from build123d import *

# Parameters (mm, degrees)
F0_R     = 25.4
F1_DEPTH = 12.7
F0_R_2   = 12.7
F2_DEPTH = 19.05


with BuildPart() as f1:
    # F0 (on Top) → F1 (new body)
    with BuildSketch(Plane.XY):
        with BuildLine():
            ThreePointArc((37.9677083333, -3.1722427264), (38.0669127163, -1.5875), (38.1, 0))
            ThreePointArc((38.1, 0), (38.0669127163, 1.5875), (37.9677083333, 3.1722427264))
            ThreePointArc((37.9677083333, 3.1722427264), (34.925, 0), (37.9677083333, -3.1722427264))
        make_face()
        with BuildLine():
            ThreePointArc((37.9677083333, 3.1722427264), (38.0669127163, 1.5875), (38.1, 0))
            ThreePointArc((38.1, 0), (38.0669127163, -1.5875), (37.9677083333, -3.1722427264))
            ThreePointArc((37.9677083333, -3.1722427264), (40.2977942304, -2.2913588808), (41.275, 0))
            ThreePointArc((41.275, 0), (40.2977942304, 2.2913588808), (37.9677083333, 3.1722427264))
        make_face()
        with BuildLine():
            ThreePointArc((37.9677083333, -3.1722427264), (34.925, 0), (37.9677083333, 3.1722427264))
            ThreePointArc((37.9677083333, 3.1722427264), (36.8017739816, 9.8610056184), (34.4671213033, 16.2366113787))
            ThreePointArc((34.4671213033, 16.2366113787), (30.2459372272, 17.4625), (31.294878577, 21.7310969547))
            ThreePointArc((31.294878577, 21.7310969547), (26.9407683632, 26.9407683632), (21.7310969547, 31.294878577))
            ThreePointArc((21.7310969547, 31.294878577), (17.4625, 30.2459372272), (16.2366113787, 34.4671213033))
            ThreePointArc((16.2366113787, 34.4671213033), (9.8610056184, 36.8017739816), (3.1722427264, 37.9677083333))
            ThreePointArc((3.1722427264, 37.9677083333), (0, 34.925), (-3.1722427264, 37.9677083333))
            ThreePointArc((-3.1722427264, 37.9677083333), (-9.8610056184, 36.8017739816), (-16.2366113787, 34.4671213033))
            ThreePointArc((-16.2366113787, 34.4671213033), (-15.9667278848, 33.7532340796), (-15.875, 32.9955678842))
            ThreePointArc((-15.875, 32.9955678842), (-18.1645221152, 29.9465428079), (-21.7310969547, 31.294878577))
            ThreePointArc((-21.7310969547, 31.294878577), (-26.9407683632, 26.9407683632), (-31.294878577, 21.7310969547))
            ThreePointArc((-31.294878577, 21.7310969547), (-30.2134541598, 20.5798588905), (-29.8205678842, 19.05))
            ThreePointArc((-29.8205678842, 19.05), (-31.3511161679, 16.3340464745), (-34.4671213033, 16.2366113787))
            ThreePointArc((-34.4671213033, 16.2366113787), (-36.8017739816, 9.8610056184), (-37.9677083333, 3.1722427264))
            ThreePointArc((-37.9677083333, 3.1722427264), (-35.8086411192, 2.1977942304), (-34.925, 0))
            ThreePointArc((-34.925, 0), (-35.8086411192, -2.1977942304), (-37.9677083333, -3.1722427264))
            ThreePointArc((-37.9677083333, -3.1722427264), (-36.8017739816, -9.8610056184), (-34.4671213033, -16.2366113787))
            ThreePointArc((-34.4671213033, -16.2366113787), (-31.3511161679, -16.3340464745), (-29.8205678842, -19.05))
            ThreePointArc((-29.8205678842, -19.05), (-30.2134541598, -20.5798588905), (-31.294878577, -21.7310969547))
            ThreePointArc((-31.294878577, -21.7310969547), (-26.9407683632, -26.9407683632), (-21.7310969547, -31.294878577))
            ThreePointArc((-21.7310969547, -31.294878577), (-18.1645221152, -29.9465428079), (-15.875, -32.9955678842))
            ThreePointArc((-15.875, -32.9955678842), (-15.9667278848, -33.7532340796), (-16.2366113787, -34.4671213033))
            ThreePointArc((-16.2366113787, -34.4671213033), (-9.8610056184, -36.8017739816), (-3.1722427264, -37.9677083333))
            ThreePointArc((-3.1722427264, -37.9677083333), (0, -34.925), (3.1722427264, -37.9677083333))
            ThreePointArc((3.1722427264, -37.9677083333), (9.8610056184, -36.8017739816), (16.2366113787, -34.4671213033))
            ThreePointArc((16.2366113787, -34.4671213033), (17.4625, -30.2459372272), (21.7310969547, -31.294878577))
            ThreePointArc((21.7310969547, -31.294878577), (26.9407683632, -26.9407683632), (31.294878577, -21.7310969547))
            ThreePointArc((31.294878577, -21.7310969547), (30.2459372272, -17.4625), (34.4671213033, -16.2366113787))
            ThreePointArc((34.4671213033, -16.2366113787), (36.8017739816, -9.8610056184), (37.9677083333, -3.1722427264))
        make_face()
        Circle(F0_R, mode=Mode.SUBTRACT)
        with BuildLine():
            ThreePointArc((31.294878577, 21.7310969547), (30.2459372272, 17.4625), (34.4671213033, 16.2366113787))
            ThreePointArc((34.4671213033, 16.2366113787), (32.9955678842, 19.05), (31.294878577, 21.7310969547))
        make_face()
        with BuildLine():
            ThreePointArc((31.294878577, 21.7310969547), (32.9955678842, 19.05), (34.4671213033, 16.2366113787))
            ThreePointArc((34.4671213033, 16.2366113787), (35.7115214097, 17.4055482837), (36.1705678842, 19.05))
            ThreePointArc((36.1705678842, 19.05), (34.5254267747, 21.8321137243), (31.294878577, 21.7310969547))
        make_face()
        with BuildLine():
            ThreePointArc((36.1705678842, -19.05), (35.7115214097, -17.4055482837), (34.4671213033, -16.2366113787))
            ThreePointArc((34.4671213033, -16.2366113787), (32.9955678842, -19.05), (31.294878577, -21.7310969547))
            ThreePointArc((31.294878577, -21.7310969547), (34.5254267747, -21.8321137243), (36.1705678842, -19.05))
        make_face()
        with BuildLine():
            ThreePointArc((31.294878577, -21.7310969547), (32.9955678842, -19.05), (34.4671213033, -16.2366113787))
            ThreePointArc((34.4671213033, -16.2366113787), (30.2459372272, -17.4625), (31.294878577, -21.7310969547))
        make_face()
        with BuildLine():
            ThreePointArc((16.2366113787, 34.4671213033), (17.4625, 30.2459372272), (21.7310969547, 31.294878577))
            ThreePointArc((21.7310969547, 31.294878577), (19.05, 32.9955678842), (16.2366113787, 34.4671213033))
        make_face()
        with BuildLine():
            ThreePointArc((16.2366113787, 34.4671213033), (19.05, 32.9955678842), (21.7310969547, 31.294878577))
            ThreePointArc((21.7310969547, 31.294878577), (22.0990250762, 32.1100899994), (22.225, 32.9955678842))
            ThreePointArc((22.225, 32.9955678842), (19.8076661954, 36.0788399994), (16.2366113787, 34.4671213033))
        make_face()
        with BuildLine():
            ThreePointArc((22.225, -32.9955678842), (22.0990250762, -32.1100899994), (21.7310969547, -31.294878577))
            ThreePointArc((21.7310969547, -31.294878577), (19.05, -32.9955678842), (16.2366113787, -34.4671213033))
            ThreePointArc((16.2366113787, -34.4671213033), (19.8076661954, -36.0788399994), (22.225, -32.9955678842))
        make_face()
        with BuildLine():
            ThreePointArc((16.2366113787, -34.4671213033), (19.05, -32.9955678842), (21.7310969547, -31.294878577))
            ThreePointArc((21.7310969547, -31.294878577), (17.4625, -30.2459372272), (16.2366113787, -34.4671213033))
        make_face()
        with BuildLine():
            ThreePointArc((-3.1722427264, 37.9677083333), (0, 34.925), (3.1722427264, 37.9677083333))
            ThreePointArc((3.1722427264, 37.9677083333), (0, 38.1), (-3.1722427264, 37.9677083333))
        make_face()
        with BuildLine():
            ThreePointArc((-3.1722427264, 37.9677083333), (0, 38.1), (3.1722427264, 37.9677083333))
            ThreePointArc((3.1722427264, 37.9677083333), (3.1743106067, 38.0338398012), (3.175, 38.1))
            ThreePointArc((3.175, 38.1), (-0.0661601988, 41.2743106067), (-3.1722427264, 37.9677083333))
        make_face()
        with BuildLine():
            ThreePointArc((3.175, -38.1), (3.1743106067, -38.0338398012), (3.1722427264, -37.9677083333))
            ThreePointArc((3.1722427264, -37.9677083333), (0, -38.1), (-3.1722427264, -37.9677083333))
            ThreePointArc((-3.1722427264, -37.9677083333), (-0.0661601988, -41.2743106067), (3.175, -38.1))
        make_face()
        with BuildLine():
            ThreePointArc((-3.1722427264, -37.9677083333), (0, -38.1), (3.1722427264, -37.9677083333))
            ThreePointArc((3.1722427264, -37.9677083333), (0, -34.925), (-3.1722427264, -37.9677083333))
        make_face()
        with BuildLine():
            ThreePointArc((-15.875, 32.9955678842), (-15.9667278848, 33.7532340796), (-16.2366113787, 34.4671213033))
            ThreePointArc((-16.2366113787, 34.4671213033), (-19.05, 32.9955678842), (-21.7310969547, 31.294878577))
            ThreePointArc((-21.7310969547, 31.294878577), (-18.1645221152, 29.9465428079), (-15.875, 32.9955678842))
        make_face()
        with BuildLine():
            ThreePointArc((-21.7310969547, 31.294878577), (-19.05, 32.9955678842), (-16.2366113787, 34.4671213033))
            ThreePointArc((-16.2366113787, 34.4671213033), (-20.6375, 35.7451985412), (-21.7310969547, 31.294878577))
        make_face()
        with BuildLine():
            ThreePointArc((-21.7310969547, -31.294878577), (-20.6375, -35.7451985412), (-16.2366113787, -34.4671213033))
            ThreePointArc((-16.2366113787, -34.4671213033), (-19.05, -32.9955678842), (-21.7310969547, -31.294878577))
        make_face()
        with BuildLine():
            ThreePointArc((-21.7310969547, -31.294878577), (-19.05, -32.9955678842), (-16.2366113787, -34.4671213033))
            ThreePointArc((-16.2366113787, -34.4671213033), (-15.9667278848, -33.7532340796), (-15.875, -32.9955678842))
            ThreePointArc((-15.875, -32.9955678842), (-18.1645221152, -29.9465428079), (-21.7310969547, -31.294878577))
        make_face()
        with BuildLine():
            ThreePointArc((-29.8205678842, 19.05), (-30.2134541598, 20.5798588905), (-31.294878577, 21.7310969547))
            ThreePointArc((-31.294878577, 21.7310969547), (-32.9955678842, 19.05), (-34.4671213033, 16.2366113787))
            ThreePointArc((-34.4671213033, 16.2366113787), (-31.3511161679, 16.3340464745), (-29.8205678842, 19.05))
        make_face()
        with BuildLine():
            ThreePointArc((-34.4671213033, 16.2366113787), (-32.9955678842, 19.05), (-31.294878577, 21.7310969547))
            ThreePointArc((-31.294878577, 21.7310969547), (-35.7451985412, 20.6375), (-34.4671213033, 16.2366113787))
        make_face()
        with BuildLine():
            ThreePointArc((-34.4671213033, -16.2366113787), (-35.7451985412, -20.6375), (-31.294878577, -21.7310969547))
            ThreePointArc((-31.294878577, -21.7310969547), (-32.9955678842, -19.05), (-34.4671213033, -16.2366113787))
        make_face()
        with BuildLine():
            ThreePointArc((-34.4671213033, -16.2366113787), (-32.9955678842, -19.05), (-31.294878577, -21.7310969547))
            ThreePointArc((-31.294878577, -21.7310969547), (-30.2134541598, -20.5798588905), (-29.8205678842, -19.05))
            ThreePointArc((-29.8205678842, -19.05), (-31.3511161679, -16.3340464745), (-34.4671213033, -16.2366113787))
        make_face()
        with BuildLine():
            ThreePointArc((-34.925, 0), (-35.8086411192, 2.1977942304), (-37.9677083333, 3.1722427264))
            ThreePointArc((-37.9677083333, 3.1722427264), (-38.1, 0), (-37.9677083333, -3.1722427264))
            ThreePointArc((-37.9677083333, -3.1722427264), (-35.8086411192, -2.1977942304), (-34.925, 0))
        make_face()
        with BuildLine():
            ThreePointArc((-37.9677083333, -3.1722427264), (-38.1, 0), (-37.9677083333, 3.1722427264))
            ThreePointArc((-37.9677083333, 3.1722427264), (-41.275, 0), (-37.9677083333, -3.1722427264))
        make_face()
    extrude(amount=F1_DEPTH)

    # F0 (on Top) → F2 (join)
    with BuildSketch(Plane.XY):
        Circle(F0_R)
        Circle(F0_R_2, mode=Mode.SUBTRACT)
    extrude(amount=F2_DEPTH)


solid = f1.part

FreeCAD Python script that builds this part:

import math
import FreeCAD as App
import Part
import Sketcher
Q = App.Units.Quantity

doc = App.newDocument("Part")
params = doc.addObject("Spreadsheet::Sheet", "Params")
for row, (alias, value) in enumerate([
    ("sketch1_diameter", "2 in"),
    ("sketch1_radius", "1.5 in"),
    ("sketch1_radius2", "0.125 in"),
    ("pad1_length", "0.5 in"),
    ("sketch2_diameter", "2 in"),
    ("sketch2_diameter2", "1 in"),
    ("pad2_length", "0.75 in"),
], start=1):
    params.set(f"A{row}", alias)
    params.set(f"B{row}", "=" + value)
    params.setAlias(f"B{row}", alias)

body = doc.addObject("PartDesign::Body", "Body")

sketch1 = body.newObject("Sketcher::SketchObject", "Sketch")
sketch1.AttachmentSupport = (doc.getObject("XY_Plane"), [""])
sketch1.MapMode = "FlatFace"
sketch1.addGeometry([
    Part.ArcOfCircle(Part.Circle(App.Vector(38.1, 0, 0), App.Vector(0, 0, 1), 3.175), math.radians(-92.388015), math.radians(0)),
    Part.ArcOfCircle(Part.Circle(App.Vector(38.1, 0, 0), App.Vector(0, 0, 1), 3.175), math.radians(0), math.radians(92.388015)),
    Part.ArcOfCircle(Part.Circle(App.Vector(0, 0, 0), App.Vector(0, 0, 1), 38.1), math.radians(4.776031), math.radians(25.223969)),
    Part.ArcOfCircle(Part.Circle(App.Vector(32.995568, 19.05, 0), App.Vector(0, 0, 1), 3.175), math.radians(-62.388015), math.radians(0)),
    Part.ArcOfCircle(Part.Circle(App.Vector(32.995568, 19.05, 0), App.Vector(0, 0, 1), 3.175), math.radians(0), math.radians(122.388015)),
    Part.ArcOfCircle(Part.Circle(App.Vector(0, 0, 0), App.Vector(0, 0, 1), 38.1), math.radians(34.776031), math.radians(55.223969)),
    Part.ArcOfCircle(Part.Circle(App.Vector(19.05, 32.995568, 0), App.Vector(0, 0, 1), 3.175), math.radians(-32.388015), math.radians(0)),
    Part.ArcOfCircle(Part.Circle(App.Vector(19.05, 32.995568, 0), App.Vector(0, 0, 1), 3.175), math.radians(0), math.radians(152.388015)),
    Part.ArcOfCircle(Part.Circle(App.Vector(0, 0, 0), App.Vector(0, 0, 1), 38.1), math.radians(64.776031), math.radians(85.223969)),
    Part.ArcOfCircle(Part.Circle(App.Vector(0, 38.1, 0), App.Vector(0, 0, 1), 3.175), math.radians(-2.388015), math.radians(0)),
    Part.ArcOfCircle(Part.Circle(App.Vector(0, 38.1, 0), App.Vector(0, 0, 1), 3.175), math.radians(0), math.radians(182.388015)),
    Part.ArcOfCircle(Part.Circle(App.Vector(0, 0, 0), App.Vector(0, 0, 1), 38.1), math.radians(94.776031), math.radians(115.223969)),
    Part.ArcOfCircle(Part.Circle(App.Vector(-19.05, 32.995568, 0), App.Vector(0, 0, 1), 3.175), math.radians(27.611985), math.radians(212.388015)),
    Part.ArcOfCircle(Part.Circle(App.Vector(0, 0, 0), App.Vector(0, 0, 1), 38.1), math.radians(124.776031), math.radians(145.223969)),
    Part.ArcOfCircle(Part.Circle(App.Vector(-32.995568, 19.05, 0), App.Vector(0, 0, 1), 3.175), math.radians(57.611985), math.radians(242.388015)),
    Part.ArcOfCircle(Part.Circle(App.Vector(0, 0, 0), App.Vector(0, 0, 1), 38.1), math.radians(154.776031), math.radians(175.223969)),
    Part.ArcOfCircle(Part.Circle(App.Vector(-38.1, 0, 0), App.Vector(0, 0, 1), 3.175), math.radians(87.611985), math.radians(272.388015)),
    Part.ArcOfCircle(Part.Circle(App.Vector(0, 0, 0), App.Vector(0, 0, 1), 38.1), math.radians(-175.223969), math.radians(-154.776031)),
    Part.ArcOfCircle(Part.Circle(App.Vector(-32.995568, -19.05, 0), App.Vector(0, 0, 1), 3.175), math.radians(117.611985), math.radians(302.388015)),
    Part.ArcOfCircle(Part.Circle(App.Vector(0, 0, 0), App.Vector(0, 0, 1), 38.1), math.radians(-145.223969), math.radians(-124.776031)),
    Part.ArcOfCircle(Part.Circle(App.Vector(-19.05, -32.995568, 0), App.Vector(0, 0, 1), 3.175), math.radians(147.611985), math.radians(332.388015)),
    Part.ArcOfCircle(Part.Circle(App.Vector(0, 0, 0), App.Vector(0, 0, 1), 38.1), math.radians(-115.223969), math.radians(-94.776031)),
    Part.ArcOfCircle(Part.Circle(App.Vector(0, -38.1, 0), App.Vector(0, 0, 1), 3.175), math.radians(177.611985), math.radians(360)),
    Part.ArcOfCircle(Part.Circle(App.Vector(0, -38.1, 0), App.Vector(0, 0, 1), 3.175), math.radians(0), math.radians(2.388015)),
    Part.ArcOfCircle(Part.Circle(App.Vector(0, 0, 0), App.Vector(0, 0, 1), 38.1), math.radians(-85.223969), math.radians(-64.776031)),
    Part.ArcOfCircle(Part.Circle(App.Vector(19.05, -32.995568, 0), App.Vector(0, 0, 1), 3.175), math.radians(-152.388015), math.radians(0)),
    Part.ArcOfCircle(Part.Circle(App.Vector(19.05, -32.995568, 0), App.Vector(0, 0, 1), 3.175), math.radians(0), math.radians(32.388015)),
    Part.ArcOfCircle(Part.Circle(App.Vector(0, 0, 0), App.Vector(0, 0, 1), 38.1), math.radians(-55.223969), math.radians(-34.776031)),
    Part.ArcOfCircle(Part.Circle(App.Vector(32.995568, -19.05, 0), App.Vector(0, 0, 1), 3.175), math.radians(-122.388015), math.radians(0)),
    Part.ArcOfCircle(Part.Circle(App.Vector(32.995568, -19.05, 0), App.Vector(0, 0, 1), 3.175), math.radians(0), math.radians(62.388015)),
    Part.ArcOfCircle(Part.Circle(App.Vector(0, 0, 0), App.Vector(0, 0, 1), 38.1), math.radians(-25.223969), math.radians(-4.776031)),
    Part.Circle(App.Vector(0, 0, 0), App.Vector(0, 0, 1), 25.4),
], False)
sketch1.addConstraint([
    Sketcher.Constraint("Tangent", 0, 2, 1, 1),
    Sketcher.Constraint("Coincident", 1, 2, 2, 1),
    Sketcher.Constraint("Coincident", 2, 2, 3, 1),
    Sketcher.Constraint("Tangent", 3, 2, 4, 1),
    Sketcher.Constraint("Coincident", 4, 2, 5, 1),
    Sketcher.Constraint("Coincident", 5, 2, 6, 1),
    Sketcher.Constraint("Tangent", 6, 2, 7, 1),
    Sketcher.Constraint("Coincident", 7, 2, 8, 1),
    Sketcher.Constraint("Coincident", 8, 2, 9, 1),
    Sketcher.Constraint("Tangent", 9, 2, 10, 1),
    Sketcher.Constraint("Coincident", 10, 2, 11, 1),
    Sketcher.Constraint("Coincident", 11, 2, 12, 1),
    Sketcher.Constraint("Coincident", 12, 2, 13, 1),
    Sketcher.Constraint("Coincident", 13, 2, 14, 1),
    Sketcher.Constraint("Coincident", 14, 2, 15, 1),
    Sketcher.Constraint("Coincident", 15, 2, 16, 1),
    Sketcher.Constraint("Coincident", 16, 2, 17, 1),
    Sketcher.Constraint("Coincident", 17, 2, 18, 1),
    Sketcher.Constraint("Coincident", 18, 2, 19, 1),
    Sketcher.Constraint("Coincident", 19, 2, 20, 1),
    Sketcher.Constraint("Coincident", 20, 2, 21, 1),
    Sketcher.Constraint("Coincident", 21, 2, 22, 1),
    Sketcher.Constraint("Tangent", 22, 2, 23, 1),
    Sketcher.Constraint("Coincident", 23, 2, 24, 1),
    Sketcher.Constraint("Coincident", 24, 2, 25, 1),
    Sketcher.Constraint("Tangent", 25, 2, 26, 1),
    Sketcher.Constraint("Coincident", 26, 2, 27, 1),
    Sketcher.Constraint("Coincident", 27, 2, 28, 1),
    Sketcher.Constraint("Tangent", 28, 2, 29, 1),
    Sketcher.Constraint("Coincident", 29, 2, 30, 1),
    Sketcher.Constraint("Coincident", 30, 2, 0, 1),
    Sketcher.Constraint("Coincident", 2, 3, -1, 1),
    Sketcher.Constraint("Coincident", 5, 3, -1, 1),
    Sketcher.Constraint("Coincident", 8, 3, -1, 1),
    Sketcher.Constraint("Coincident", 11, 3, -1, 1),
    Sketcher.Constraint("Coincident", 13, 3, -1, 1),
    Sketcher.Constraint("Coincident", 15, 3, -1, 1),
    Sketcher.Constraint("Coincident", 17, 3, -1, 1),
    Sketcher.Constraint("Coincident", 19, 3, -1, 1),
    Sketcher.Constraint("Coincident", 21, 3, -1, 1),
    Sketcher.Constraint("Coincident", 24, 3, -1, 1),
    Sketcher.Constraint("Coincident", 27, 3, -1, 1),
    Sketcher.Constraint("Coincident", 30, 3, -1, 1),
    Sketcher.Constraint("Coincident", 31, 3, -1, 1),
    Sketcher.Constraint("Equal", 0, 1),
    Sketcher.Constraint("Equal", 1, 3),
    Sketcher.Constraint("Equal", 3, 4),
    Sketcher.Constraint("Equal", 2, 5),
    Sketcher.Constraint("Equal", 4, 6),
    Sketcher.Constraint("Equal", 6, 7),
    Sketcher.Constraint("Equal", 5, 8),
    Sketcher.Constraint("Equal", 7, 9),
    Sketcher.Constraint("Equal", 9, 10),
    Sketcher.Constraint("Equal", 8, 11),
    Sketcher.Constraint("Equal", 10, 12),
    Sketcher.Constraint("Equal", 11, 13),
    Sketcher.Constraint("Equal", 12, 14),
    Sketcher.Constraint("Equal", 13, 15),
    Sketcher.Constraint("Equal", 14, 16),
    Sketcher.Constraint("Equal", 15, 17),
    Sketcher.Constraint("Equal", 16, 18),
    Sketcher.Constraint("Equal", 17, 19),
    Sketcher.Constraint("Equal", 18, 20),
    Sketcher.Constraint("Equal", 19, 21),
    Sketcher.Constraint("Equal", 20, 22),
    Sketcher.Constraint("Equal", 22, 23),
    Sketcher.Constraint("Equal", 21, 24),
    Sketcher.Constraint("Equal", 23, 25),
    Sketcher.Constraint("Equal", 25, 26),
    Sketcher.Constraint("Equal", 24, 27),
    Sketcher.Constraint("Equal", 26, 28),
    Sketcher.Constraint("Equal", 28, 29),
    Sketcher.Constraint("Equal", 27, 30),
    Sketcher.Constraint("Symmetric", 0, 3, 16, 3, -1, 1),
    Sketcher.Constraint("Symmetric", 3, 3, 18, 3, -1, 1),
    Sketcher.Constraint("Symmetric", 6, 3, 20, 3, -1, 1),
    Sketcher.Constraint("Symmetric", 9, 3, 22, 3, -1, 1),
    Sketcher.Constraint("Symmetric", 12, 3, 25, 3, -1, 1),
    Sketcher.Constraint("Symmetric", 14, 3, 28, 3, -1, 1),
    Sketcher.Constraint("Symmetric", 6, 3, 12, 3, -2),
    Sketcher.Constraint("Symmetric", 3, 3, 14, 3, -2),
    Sketcher.Constraint("Symmetric", 9, 2, 22, 2, -1),
    Sketcher.Constraint("PointOnObject", 0, 3, -1),
    Sketcher.Constraint("PointOnObject", 0, 2, -1),
    Sketcher.Constraint("Horizontal", 14, 3, 3, 2),
    Sketcher.Constraint("Horizontal", 12, 3, 6, 2),
    Sketcher.Constraint("Horizontal", 10, 3, 9, 2),
    Sketcher.Constraint("Horizontal", 26, 3, 25, 2),
    Sketcher.Constraint("Horizontal", 29, 3, 28, 2),
    Sketcher.Constraint("Diameter", 31, Q("2 in")),
    Sketcher.Constraint("Radius", 2, Q("1.5 in")),
    Sketcher.Constraint("Radius", 0, Q("0.125 in")),
    Sketcher.Constraint("DistanceX", -1, 1, 0, 3, Q("1.5 in")),
    Sketcher.Constraint("DistanceY", -1, 1, 9, 3, Q("1.5 in")),
    Sketcher.Constraint("DistanceY", -1, 1, 3, 3, Q("0.75 in")),
    Sketcher.Constraint("DistanceX", -1, 1, 6, 3, Q("0.75 in")),
    Sketcher.Constraint("DistanceX", -1, 1, 2, 2, Q("34.467121 mm")),
    Sketcher.Constraint("DistanceY", -1, 1, 5, 2, Q("31.294879 mm")),
])
sketch1.setExpression("Constraints[89]", "Params.sketch1_diameter")
sketch1.setExpression("Constraints[90]", "Params.sketch1_radius")
sketch1.setExpression("Constraints[91]", "Params.sketch1_radius2")
pad1 = body.newObject("PartDesign::Pad", "Pad")
pad1.Profile = sketch1
pad1.setExpression("Length", "Params.pad1_length")

sketch2 = body.newObject("Sketcher::SketchObject", "Sketch001")
sketch2.AttachmentSupport = (doc.getObject("XY_Plane"), [""])
sketch2.MapMode = "FlatFace"
sketch2.addGeometry([
    Part.Circle(App.Vector(0, 0, 0), App.Vector(0, 0, 1), 25.4),
    Part.Circle(App.Vector(0, 0, 0), App.Vector(0, 0, 1), 12.7),
], False)
sketch2.addConstraint([
    Sketcher.Constraint("Coincident", 0, 3, -1, 1),
    Sketcher.Constraint("Coincident", 1, 3, -1, 1),
    Sketcher.Constraint("Diameter", 0, Q("2 in")),
    Sketcher.Constraint("Diameter", 1, Q("1 in")),
])
sketch2.setExpression("Constraints[2]", "Params.sketch2_diameter")
sketch2.setExpression("Constraints[3]", "Params.sketch2_diameter2")
pad2 = body.newObject("PartDesign::Pad", "Pad001")
pad2.Profile = sketch2
pad2.setExpression("Length", "Params.pad2_length")

doc.recompute()
